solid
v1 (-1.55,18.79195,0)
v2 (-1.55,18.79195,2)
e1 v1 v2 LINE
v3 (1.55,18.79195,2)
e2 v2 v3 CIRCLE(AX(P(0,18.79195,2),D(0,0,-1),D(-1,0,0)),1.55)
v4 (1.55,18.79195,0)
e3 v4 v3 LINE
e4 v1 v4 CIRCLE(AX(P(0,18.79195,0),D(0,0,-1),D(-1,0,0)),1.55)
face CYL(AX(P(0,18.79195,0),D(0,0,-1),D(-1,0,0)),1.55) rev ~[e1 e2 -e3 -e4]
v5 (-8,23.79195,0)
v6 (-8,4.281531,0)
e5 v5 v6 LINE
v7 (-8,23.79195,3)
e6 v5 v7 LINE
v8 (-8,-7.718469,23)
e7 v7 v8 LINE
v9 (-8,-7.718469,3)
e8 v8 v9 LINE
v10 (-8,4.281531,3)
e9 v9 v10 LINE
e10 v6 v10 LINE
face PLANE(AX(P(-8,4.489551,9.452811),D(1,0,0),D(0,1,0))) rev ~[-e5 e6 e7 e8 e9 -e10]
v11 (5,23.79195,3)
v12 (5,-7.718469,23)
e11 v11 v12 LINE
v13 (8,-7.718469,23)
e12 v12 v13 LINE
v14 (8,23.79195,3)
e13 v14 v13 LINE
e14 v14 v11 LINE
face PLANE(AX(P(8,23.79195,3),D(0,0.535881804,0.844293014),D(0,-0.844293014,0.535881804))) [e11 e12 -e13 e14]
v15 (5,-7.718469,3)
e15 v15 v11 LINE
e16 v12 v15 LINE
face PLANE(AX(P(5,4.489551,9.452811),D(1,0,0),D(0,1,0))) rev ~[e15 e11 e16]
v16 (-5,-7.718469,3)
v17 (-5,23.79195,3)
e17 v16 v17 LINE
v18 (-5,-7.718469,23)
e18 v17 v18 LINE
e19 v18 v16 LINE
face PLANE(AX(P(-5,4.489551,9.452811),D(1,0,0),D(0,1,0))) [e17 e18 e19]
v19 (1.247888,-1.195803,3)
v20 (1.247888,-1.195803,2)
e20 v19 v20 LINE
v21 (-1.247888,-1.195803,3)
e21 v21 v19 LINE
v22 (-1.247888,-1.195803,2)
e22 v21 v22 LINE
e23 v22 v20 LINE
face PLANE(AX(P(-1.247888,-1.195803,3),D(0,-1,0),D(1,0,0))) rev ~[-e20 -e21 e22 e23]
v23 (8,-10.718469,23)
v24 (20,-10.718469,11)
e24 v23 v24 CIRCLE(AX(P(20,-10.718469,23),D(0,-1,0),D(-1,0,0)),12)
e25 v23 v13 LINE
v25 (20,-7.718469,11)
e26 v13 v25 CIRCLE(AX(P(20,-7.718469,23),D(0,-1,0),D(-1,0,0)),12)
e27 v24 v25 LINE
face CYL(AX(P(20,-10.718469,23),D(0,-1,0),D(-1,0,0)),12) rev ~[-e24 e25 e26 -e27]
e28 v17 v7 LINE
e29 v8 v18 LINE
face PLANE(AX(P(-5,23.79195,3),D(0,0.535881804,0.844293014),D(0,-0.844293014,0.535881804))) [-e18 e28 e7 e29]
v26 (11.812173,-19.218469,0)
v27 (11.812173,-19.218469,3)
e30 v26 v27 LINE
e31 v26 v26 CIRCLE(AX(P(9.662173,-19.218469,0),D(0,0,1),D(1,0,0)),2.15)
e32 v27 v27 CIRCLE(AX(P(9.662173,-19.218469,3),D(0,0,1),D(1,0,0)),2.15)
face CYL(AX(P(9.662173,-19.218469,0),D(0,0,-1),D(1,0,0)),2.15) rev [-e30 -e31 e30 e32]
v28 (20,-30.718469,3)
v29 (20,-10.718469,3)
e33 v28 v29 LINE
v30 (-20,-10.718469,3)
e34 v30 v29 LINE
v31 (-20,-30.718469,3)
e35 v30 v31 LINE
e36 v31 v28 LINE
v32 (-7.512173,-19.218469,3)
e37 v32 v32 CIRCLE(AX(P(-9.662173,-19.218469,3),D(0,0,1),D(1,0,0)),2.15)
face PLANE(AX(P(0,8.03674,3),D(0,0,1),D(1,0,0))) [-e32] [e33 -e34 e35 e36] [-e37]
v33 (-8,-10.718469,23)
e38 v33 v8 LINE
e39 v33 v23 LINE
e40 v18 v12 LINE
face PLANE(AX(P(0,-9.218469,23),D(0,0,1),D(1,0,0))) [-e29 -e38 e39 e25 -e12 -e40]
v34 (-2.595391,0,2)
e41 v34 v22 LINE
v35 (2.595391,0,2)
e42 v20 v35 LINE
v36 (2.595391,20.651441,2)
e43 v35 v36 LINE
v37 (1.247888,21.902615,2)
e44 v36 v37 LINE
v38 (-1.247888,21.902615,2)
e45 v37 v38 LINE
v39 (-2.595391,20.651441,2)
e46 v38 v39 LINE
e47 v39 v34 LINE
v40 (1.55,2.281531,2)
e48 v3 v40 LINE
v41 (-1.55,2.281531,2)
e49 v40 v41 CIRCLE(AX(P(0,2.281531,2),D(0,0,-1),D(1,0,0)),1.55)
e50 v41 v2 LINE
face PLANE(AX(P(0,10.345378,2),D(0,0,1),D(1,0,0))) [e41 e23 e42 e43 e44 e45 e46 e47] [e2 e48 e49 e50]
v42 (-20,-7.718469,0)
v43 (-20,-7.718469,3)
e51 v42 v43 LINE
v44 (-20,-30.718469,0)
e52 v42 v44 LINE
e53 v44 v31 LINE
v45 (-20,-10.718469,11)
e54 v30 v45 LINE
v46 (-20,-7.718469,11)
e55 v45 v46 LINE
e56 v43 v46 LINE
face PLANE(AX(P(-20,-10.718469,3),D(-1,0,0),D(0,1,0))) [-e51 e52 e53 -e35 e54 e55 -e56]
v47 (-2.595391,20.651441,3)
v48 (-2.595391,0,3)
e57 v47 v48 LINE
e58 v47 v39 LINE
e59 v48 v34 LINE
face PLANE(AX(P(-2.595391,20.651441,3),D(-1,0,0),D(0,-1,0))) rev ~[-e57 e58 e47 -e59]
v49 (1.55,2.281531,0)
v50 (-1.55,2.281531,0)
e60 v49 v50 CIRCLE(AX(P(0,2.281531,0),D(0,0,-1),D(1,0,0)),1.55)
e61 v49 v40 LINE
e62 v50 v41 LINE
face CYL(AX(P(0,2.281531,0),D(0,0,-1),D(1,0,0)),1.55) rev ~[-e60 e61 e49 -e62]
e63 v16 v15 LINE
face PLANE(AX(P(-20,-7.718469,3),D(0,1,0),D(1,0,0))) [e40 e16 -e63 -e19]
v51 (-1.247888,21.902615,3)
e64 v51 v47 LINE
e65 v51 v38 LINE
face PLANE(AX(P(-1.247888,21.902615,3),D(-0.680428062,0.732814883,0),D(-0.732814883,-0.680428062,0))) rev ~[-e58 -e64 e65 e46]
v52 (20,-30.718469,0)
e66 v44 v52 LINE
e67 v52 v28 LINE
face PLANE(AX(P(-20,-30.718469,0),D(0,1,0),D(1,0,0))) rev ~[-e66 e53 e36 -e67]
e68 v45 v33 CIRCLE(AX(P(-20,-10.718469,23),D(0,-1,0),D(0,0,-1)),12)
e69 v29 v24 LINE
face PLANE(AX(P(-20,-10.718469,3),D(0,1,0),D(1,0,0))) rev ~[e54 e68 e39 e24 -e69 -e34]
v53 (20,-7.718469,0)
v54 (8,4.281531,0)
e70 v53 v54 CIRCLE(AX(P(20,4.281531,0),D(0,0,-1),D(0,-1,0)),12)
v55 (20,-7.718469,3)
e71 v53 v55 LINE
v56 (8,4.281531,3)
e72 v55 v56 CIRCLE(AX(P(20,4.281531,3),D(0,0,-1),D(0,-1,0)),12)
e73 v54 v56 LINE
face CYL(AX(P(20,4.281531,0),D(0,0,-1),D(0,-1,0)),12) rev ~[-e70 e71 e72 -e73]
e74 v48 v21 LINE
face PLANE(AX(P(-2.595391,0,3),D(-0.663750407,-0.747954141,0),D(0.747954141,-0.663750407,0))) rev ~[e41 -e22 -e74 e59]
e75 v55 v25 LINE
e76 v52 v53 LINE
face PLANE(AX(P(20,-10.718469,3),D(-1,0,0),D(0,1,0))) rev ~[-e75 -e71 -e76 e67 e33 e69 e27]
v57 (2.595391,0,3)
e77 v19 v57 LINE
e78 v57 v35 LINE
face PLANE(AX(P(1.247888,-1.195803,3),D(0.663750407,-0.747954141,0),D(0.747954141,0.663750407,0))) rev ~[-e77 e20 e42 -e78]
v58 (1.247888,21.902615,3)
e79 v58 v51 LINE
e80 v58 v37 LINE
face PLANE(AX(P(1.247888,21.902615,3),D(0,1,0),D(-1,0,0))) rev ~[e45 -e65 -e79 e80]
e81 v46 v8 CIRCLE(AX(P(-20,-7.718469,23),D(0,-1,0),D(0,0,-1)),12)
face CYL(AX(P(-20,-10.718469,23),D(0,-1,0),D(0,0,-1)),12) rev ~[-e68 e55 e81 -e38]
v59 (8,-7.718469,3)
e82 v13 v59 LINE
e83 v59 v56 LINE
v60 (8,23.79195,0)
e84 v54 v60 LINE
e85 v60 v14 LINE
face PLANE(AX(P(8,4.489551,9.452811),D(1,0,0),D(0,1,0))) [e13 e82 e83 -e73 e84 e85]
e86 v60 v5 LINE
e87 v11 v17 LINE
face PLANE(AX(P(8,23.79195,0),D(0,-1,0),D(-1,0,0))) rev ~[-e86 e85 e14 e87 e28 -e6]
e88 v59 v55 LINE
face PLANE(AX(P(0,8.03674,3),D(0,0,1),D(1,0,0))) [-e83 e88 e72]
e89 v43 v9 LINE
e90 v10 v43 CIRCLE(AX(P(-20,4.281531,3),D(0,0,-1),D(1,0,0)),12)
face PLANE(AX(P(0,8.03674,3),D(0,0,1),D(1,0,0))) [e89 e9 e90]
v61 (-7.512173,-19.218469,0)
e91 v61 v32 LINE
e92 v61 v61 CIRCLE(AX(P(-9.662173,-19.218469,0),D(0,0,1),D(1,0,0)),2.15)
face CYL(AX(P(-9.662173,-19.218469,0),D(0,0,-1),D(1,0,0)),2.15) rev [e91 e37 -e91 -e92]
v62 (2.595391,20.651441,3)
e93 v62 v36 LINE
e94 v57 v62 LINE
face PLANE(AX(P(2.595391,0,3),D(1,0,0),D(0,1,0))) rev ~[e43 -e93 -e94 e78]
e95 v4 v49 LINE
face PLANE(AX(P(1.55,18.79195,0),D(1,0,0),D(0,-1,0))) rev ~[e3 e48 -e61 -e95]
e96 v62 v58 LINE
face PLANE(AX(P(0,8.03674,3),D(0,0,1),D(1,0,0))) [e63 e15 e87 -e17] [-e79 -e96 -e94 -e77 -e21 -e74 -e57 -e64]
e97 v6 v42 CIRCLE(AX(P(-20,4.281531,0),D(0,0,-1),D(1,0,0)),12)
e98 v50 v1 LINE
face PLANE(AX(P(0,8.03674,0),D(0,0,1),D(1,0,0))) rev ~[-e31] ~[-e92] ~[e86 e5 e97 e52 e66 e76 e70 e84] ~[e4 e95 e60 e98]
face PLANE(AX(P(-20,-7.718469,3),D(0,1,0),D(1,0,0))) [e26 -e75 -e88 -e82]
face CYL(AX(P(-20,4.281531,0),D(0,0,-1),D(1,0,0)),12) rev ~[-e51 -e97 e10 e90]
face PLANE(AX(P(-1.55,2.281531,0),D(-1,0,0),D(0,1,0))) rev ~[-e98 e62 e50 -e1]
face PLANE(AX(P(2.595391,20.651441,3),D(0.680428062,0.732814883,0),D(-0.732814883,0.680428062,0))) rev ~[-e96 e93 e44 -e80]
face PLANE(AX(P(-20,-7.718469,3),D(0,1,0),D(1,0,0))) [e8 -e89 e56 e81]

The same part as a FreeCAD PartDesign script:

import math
import FreeCAD as App
import Part
import Sketcher


def add_polygon(sketch, points):
    """Adds a closed chain of lines whose ends are joined by coincident constraints."""
    first, n = sketch.GeometryCount, len(points)
    for a, b in zip(points, points[1:] + points[:1]):
        sketch.addGeometry(Part.LineSegment(App.Vector(*a, 0), App.Vector(*b, 0)), False)
    for i in range(n):
        sketch.addConstraint(Sketcher.Constraint("Coincident", first + i, 2, first + (i + 1) % n, 1))

doc = App.newDocument("Part")
params = doc.addObject("Spreadsheet::Sheet", "Params")
for row, (alias, value) in enumerate([
    ("sketch1_radius", "12 mm"),
    ("sketch1_diameter", "4.3 mm"),
    ("sketch1_width", "16 mm"),
    ("sketch1_width2", "40 mm"),
    ("sketch1_height", "23 mm"),
    ("pad1_length", "3 mm"),
    ("sketch2_width", "40 mm"),
    ("sketch2_height", "3 mm"),
    ("pad2_length", "20 mm"),
    ("sketch3_radius", "12 mm"),
    ("pocket1_length", "4 mm"),
    ("sketch4_height", "20 mm"),
    ("pad3_length", "3 mm"),
    ("sketch5_height", "20 mm"),
    ("pad4_length", "3 mm"),
    ("sketch6_radius", "1.55 mm"),
    ("pocket2_length", "1 mm"),
], start=1):
    params.set(f"A{row}", alias)
    params.set(f"B{row}", "=" + value)
    params.setAlias(f"B{row}", alias)

body = doc.addObject("PartDesign::Body", "Body")

# Sketch on XY plane
sketch1 = body.newObject("Sketcher::SketchObject", "Sketch")
sketch1.AttachmentSupport = (doc.getObject("XY_Plane"), [""])
sketch1.MapMode = "FlatFace"
sketch1.addGeometry([
    Part.LineSegment(App.Vector(8, 4.3, 0), App.Vector(8, 23.8, 0)),  # 0
    Part.LineSegment(App.Vector(8, 23.8, 0), App.Vector(-8, 23.8, 0)),  # 1
    Part.LineSegment(App.Vector(-8, 23.8, 0), App.Vector(-8, 4.3, 0)),  # 2
    Part.ArcOfCircle(Part.Circle(App.Vector(-20, 4.3, 0), App.Vector(0, 0, 1), 12), math.radians(-90), math.radians(0)),  # 3
    Part.LineSegment(App.Vector(-20, -7.7, 0), App.Vector(-20, -30.7, 0)),  # 4
    Part.LineSegment(App.Vector(-20, -30.7, 0), App.Vector(20, -30.7, 0)),  # 5
    Part.LineSegment(App.Vector(20, -30.7, 0), App.Vector(20, -7.7, 0)),  # 6
    Part.ArcOfCircle(Part.Circle(App.Vector(20, 4.3, 0), App.Vector(0, 0, 1), 12), math.radians(180), math.radians(270)),  # 7
    Part.Circle(App.Vector(-9.7, -19.2, 0), App.Vector(0, 0, 1), 2.1),  # 8
    Part.Circle(App.Vector(9.7, -19.2, 0), App.Vector(0, 0, 1), 2.1),  # 9
    Part.LineSegment(App.Vector(-1.6, 2.3, 0), App.Vector(-1.6, 18.8, 0)),  # 10
    Part.ArcOfCircle(Part.Circle(App.Vector(0, 18.8, 0), App.Vector(0, 0, 1), 1.6), math.radians(0), math.radians(180)),  # 11
    Part.LineSegment(App.Vector(1.6, 18.8, 0), App.Vector(1.6, 2.3, 0)),  # 12
    Part.ArcOfCircle(Part.Circle(App.Vector(0, 2.3, 0), App.Vector(0, 0, 1), 1.6), math.radians(180), math.radians(360)),  # 13
], False)
sketch1.addConstraint([
    Sketcher.Constraint("Coincident", 0, 2, 1, 1),
    Sketcher.Constraint("Coincident", 1, 2, 2, 1),
    Sketcher.Constraint("Tangent", 2, 2, 3, 2),
    Sketcher.Constraint("Coincident", 3, 1, 4, 1),
    Sketcher.Constraint("Coincident", 4, 2, 5, 1),
    Sketcher.Constraint("Coincident", 5, 2, 6, 1),
    Sketcher.Constraint("Coincident", 6, 2, 7, 2),
    Sketcher.Constraint("Tangent", 7, 1, 0, 1),
    Sketcher.Constraint("Tangent", 10, 2, 11, 2),
    Sketcher.Constraint("Tangent", 11, 1, 12, 1),
    Sketcher.Constraint("Tangent", 12, 2, 13, 2),
    Sketcher.Constraint("Tangent", 13, 1, 10, 1),
    Sketcher.Constraint("Vertical", 0),
    Sketcher.Constraint("Horizontal", 1),
    Sketcher.Constraint("Vertical", 2),
    Sketcher.Constraint("Vertical", 4),
    Sketcher.Constraint("Horizontal", 5),
    Sketcher.Constraint("Vertical", 6),
    Sketcher.Constraint("Vertical", 10),
    Sketcher.Constraint("Vertical", 12),
    Sketcher.Constraint("Equal", 3, 7),
    Sketcher.Constraint("Equal", 8, 9),
    Sketcher.Constraint("Symmetric", 3, 3, 7, 3, -2),
    Sketcher.Constraint("Symmetric", 8, 3, 9, 3, -2),
    Sketcher.Constraint("PointOnObject", 11, 3, -2),
    Sketcher.Constraint("Vertical", 7, 3, 5, 2),
    Sketcher.Constraint("Radius", 3, 12.0),
    Sketcher.Constraint("Diameter", 8, 4.3),
    Sketcher.Constraint("DistanceX", 1, 2, 1, 1, 16.0),
    Sketcher.Constraint("DistanceX", 5, 1, 5, 2, 40.0),
    Sketcher.Constraint("DistanceY", 4, 2, 4, 1, 23.0),
    Sketcher.Constraint("Radius", 11, 1.55),
    Sketcher.Constraint("DistanceY", 13, 3, 3, 3, 2.0),
    Sketcher.Constraint("DistanceY", 11, 3, 0, 2, 5.0),
    Sketcher.Constraint("DistanceY", 8, 3, 3, 3, 23.5),
    Sketcher.Constraint("DistanceY", 0, 1, 0, 2, 19.510419),
    Sketcher.Constraint("DistanceY", -1, 1, 3, 3, 4.281531),
    Sketcher.Constraint("DistanceX", 8, 3, -1, 1, 9.662173),
])
sketch1.setExpression("Constraints[26]", "Params.sketch1_radius")
sketch1.setExpression("Constraints[27]", "Params.sketch1_diameter")
sketch1.setExpression("Constraints[28]", "Params.sketch1_width")
sketch1.setExpression("Constraints[29]", "Params.sketch1_width2")
sketch1.setExpression("Constraints[30]", "Params.sketch1_height")
pad1 = body.newObject("PartDesign::Pad", "Pad")
pad1.Profile = sketch1
pad1.setExpression("Length", "Params.pad1_length")

# Sketch on XY plane
sketch2 = body.newObject("Sketcher::SketchObject", "Sketch001")
sketch2.AttachmentSupport = (doc.getObject("XY_Plane"), [""])
sketch2.MapMode = "FlatFace"
sketch2.AttachmentOffset = App.Placement(App.Vector(0, 0, 3), App.Rotation())
add_polygon(sketch2, [(-20, -7.7), (-20, -10.7), (20, -10.7), (20, -7.7)])  # lines 0-3
sketch2.addConstraint([
    Sketcher.Constraint("Vertical", 0),
    Sketcher.Constraint("Horizontal", 1),
    Sketcher.Constraint("Vertical", 2),
    Sketcher.Constraint("Horizontal", 3),
    Sketcher.Constraint("DistanceX", 1, 1, 1, 2, 40.0),
    Sketcher.Constraint("DistanceY", 0, 2, 0, 1, 3.0),
    Sketcher.Constraint("DistanceX", 0, 2, -1, 1, 20.0),
    Sketcher.Constraint("DistanceY", 0, 2, -1, 1, 10.718469),
])
sketch2.setExpression("Constraints[8]", "Params.sketch2_width")
sketch2.setExpression("Constraints[9]", "Params.sketch2_height")
pad2 = body.newObject("PartDesign::Pad", "Pad001")
pad2.Profile = sketch2
pad2.setExpression("Length", "Params.pad2_length")

# Sketch on XZ plane
sketch3 = body.newObject("Sketcher::SketchObject", "Sketch002")
sketch3.AttachmentSupport = (doc.getObject("XZ_Plane"), [""])
sketch3.MapMode = "FlatFace"
sketch3.AttachmentOffset = App.Placement(App.Vector(0, 0, 10.718469), App.Rotation())
sketch3.addGeometry([
    Part.LineSegment(App.Vector(-20, 23, 0), App.Vector(-20, 11, 0)),  # 0
    Part.ArcOfCircle(Part.Circle(App.Vector(-20, 23, 0), App.Vector(0, 0, 1), 12), math.radians(-90), math.radians(0)),  # 1
    Part.LineSegment(App.Vector(-8, 23, 0), App.Vector(-20, 23, 0)),  # 2
    Part.LineSegment(App.Vector(20, 23, 0), App.Vector(8, 23, 0)),  # 3
    Part.ArcOfCircle(Part.Circle(App.Vector(20, 23, 0), App.Vector(0, 0, 1), 12), math.radians(180), math.radians(270)),  # 4
    Part.LineSegment(App.Vector(20, 11, 0), App.Vector(20, 23, 0)),  # 5
], False)
sketch3.addConstraint([
    Sketcher.Constraint("Coincident", 0, 2, 1, 1),
    Sketcher.Constraint("Coincident", 1, 2, 2, 1),
    Sketcher.Constraint("Coincident", 2, 2, 0, 1),
    Sketcher.Constraint("Coincident", 3, 2, 4, 1),
    Sketcher.Constraint("Coincident", 4, 2, 5, 1),
    Sketcher.Constraint("Coincident", 5, 2, 3, 1),
    Sketcher.Constraint("Vertical", 0),
    Sketcher.Constraint("Horizontal", 2),
    Sketcher.Constraint("Horizontal", 3),
    Sketcher.Constraint("Vertical", 5),
    Sketcher.Constraint("Coincident", 2, 2, 1, 3),
    Sketcher.Constraint("Coincident", 5, 2, 4, 3),
    Sketcher.Constraint("Equal", 1, 4),
    Sketcher.Constraint("Symmetric", 1, 3, 4, 3, -2),
    Sketcher.Constraint("Radius", 1, 12.0),
    Sketcher.Constraint("DistanceX", 1, 3, -1, 1, 20.0),
    Sketcher.Constraint("DistanceY", -1, 1, 1, 3, 23.0),
])
sketch3.setExpression("Constraints[14]", "Params.sketch3_radius")
pocket1 = body.newObject("PartDesign::Pocket", "Pocket")
pocket1.Profile = sketch3
pocket1.setExpression("Length", "Params.pocket1_length")

# Sketch on YZ plane
sketch4 = body.newObject("Sketcher::SketchObject", "Sketch003")
sketch4.AttachmentSupport = (doc.getObject("YZ_Plane"), [""])
sketch4.MapMode = "FlatFace"
sketch4.AttachmentOffset = App.Placement(App.Vector(0, 0, 8), App.Rotation())
add_polygon(sketch4, [(24, 3), (-8, 23), (-8, 3)])  # lines 0-2
sketch4.addConstraint([
    Sketcher.Constraint("Vertical", 1),
    Sketcher.Constraint("Horizontal", 2),
    Sketcher.Constraint("DistanceY", 1, 2, 1, 1, 20.0),
    Sketcher.Constraint("DistanceY", -1, 1, 0, 2, 23.0),
    Sketcher.Constraint("DistanceX", 2, 1, 2, 2, 31.510419),
    Sketcher.Constraint("DistanceX", 0, 2, -1, 1, 7.718469),
])
sketch4.setExpression("Constraints[5]", "Params.sketch4_height")
pad3 = body.newObject("PartDesign::Pad", "Pad002")
pad3.Profile = sketch4
pad3.setExpression("Length", "Params.pad3_length")
pad3.Reversed = True

# Sketch on YZ plane
sketch5 = body.newObject("Sketcher::SketchObject", "Sketch004")
sketch5.AttachmentSupport = (doc.getObject("YZ_Plane"), [""])
sketch5.MapMode = "FlatFace"
sketch5.AttachmentOffset = App.Placement(App.Vector(0, 0, -5), App.Rotation())
add_polygon(sketch5, [(24, 3), (-8, 23), (-8, 3)])  # lines 0-2
sketch5.addConstraint([
    Sketcher.Constraint("Vertical", 1),
    Sketcher.Constraint("Horizontal", 2),
    Sketcher.Constraint("DistanceY", 1, 2, 1, 1, 20.0),
    Sketcher.Constraint("DistanceY", -1, 1, 0, 2, 23.0),
    Sketcher.Constraint("DistanceX", 2, 1, 2, 2, 31.510419),
    Sketcher.Constraint("DistanceX", 0, 2, -1, 1, 7.718469),
])
sketch5.setExpression("Constraints[5]", "Params.sketch5_height")
pad4 = body.newObject("PartDesign::Pad", "Pad003")
pad4.Profile = sketch5
pad4.setExpression("Length", "Params.pad4_length")
pad4.Reversed = True

# Sketch on XY plane
sketch6 = body.newObject("Sketcher::SketchObject", "Sketch005")
sketch6.AttachmentSupport = (doc.getObject("XY_Plane"), [""])
sketch6.MapMode = "FlatFace"
sketch6.AttachmentOffset = App.Placement(App.Vector(0, 0, 3), App.Rotation())
add_polygon(sketch6, [(1.2, 21.9), (-1.2, 21.9), (-2.6, 20.7), (-2.6, 0), (-1.2, -1.2), (1.2, -1.2), (2.6, 0), (2.6, 20.7)])  # lines 0-7
sketch6.addGeometry(Part.ArcOfCircle(Part.Circle(App.Vector(0, 2.3, 0), App.Vector(0, 0, 1), 1.6), math.radians(180), math.radians(360)), False)  # 8
sketch6.addGeometry(Part.LineSegment(App.Vector(-1.6, 2.3, 0), App.Vector(-1.6, 18.8, 0)), False)  # 9
sketch6.addGeometry(Part.ArcOfCircle(Part.Circle(App.Vector(0, 18.8, 0), App.Vector(0, 0, 1), 1.6), math.radians(0), math.radians(180)), False)  # 10
sketch6.addGeometry(Part.LineSegment(App.Vector(1.6, 18.8, 0), App.Vector(1.6, 2.3, 0)), False)  # 11
sketch6.addConstraint([
    Sketcher.Constraint("Tangent", 8, 1, 9, 1),
    Sketcher.Constraint("Tangent", 9, 2, 10, 2),
    Sketcher.Constraint("Tangent", 10, 1, 11, 1),
    Sketcher.Constraint("Tangent", 11, 2, 8, 2),
    Sketcher.Constraint("Horizontal", 0),
    Sketcher.Constraint("Vertical", 2),
    Sketcher.Constraint("Horizontal", 4),
    Sketcher.Constraint("Vertical", 6),
    Sketcher.Constraint("Vertical", 9),
    Sketcher.Constraint("Vertical", 11),
    Sketcher.Constraint("Symmetric", 2, 2, 5, 2, -1, 1),
    Sketcher.Constraint("PointOnObject", 8, 3, -2),
    Sketcher.Constraint("PointOnObject", 2, 2, -1),
    Sketcher.Constraint("Horizontal", 1, 2, 6, 2),
    Sketcher.Constraint("Vertical", 0, 2, 3, 2),
    Sketcher.Constraint("Vertical", 4, 2, 7, 2),
    Sketcher.Constraint("Equal", 3, 5),
    Sketcher.Constraint("Radius", 8, 1.55),
    Sketcher.Constraint("DistanceY", 2, 2, 2, 1, 20.651441),
    Sketcher.Constraint("DistanceY", 9, 1, 9, 2, 16.510419),
    Sketcher.Constraint("DistanceX", 0, 2, 0, 1, 2.495775),
    Sketcher.Constraint("DistanceY", -1, 1, 8, 3, 2.281531),
    Sketcher.Constraint("DistanceX", 1, 2, -1, 1, 2.595391),
    Sketcher.Constraint("DistanceY", 3, 2, 0, 2, 23.098418),
    Sketcher.Constraint("Distance", 1, 1.838805),
])
sketch6.setExpression("Constraints[25]", "Params.sketch6_radius")
pocket2 = body.newObject("PartDesign::Pocket", "Pocket001")
pocket2.Profile = sketch6
pocket2.setExpression("Length", "Params.pocket2_length")

doc.recompute()
